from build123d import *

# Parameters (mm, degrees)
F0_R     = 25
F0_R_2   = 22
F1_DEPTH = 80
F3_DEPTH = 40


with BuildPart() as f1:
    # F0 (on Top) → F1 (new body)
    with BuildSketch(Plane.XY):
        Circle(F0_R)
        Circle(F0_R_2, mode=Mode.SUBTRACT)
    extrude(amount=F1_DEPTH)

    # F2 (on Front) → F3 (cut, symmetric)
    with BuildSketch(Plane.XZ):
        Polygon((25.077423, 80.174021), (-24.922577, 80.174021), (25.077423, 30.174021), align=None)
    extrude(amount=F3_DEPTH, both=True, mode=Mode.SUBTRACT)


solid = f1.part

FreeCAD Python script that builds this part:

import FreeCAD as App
import Part
import Sketcher

V = App.Vector


def add_polygon(sketch, points):
    """Adds a closed chain of lines whose ends are joined by coincident constraints."""
    first, n = sketch.GeometryCount, len(points)
    for a, b in zip(points, points[1:] + points[:1]):
        sketch.addGeometry(Part.LineSegment(App.Vector(*a, 0), App.Vector(*b, 0)), False)
    for i in range(n):
        sketch.addConstraint(Sketcher.Constraint("Coincident", first + i, 2, first + (i + 1) % n, 1))

doc = App.newDocument("Part")
body = doc.addObject("PartDesign::Body", "Body")

sketch1 = body.newObject("Sketcher::SketchObject", "Sketch")
sketch1.AttachmentSupport = (doc.getObject("XY_Plane"), [""])
sketch1.MapMode = "FlatFace"
sketch1.addGeometry(Part.Circle(V(0, 0, 0), V(0, 0, 1), 25), False)
sketch1.addGeometry(Part.Circle(V(0, 0, 0), V(0, 0, 1), 22), False)
sketch1.addConstraint(Sketcher.Constraint("Coincident", 0, 3, -1, 1))
sketch1.addConstraint(Sketcher.Constraint("Coincident", 1, 3, -1, 1))
sketch1.addConstraint(Sketcher.Constraint("Diameter", 0, 50.0))
sketch1.addConstraint(Sketcher.Constraint("Diameter", 1, 44.0))
pad1 = body.newObject("PartDesign::Pad", "Pad")
pad1.Profile = sketch1
pad1.Length = 80

sketch2 = body.newObject("Sketcher::SketchObject", "Sketch001")
sketch2.AttachmentSupport = (doc.getObject("XZ_Plane"), [""])
sketch2.MapMode = "FlatFace"
add_polygon(sketch2, [(25.077423, 80.174021), (-24.922577, 80.174021), (25.077423, 30.174021)])
sketch2.addConstraint(Sketcher.Constraint("Horizontal", 0))
sketch2.addConstraint(Sketcher.Constraint("Vertical", 2))
sketch2.addConstraint(Sketcher.Constraint("Equal", 0, 2))
sketch2.addConstraint(Sketcher.Constraint("DistanceX", 0, 2, 0, 1, 50.0))
sketch2.addConstraint(Sketcher.Constraint("DistanceY", -1, 1, 0, 2, 80.174021))
sketch2.addConstraint(Sketcher.Constraint("DistanceX", 0, 2, -1, 1, 24.922577))
pocket1 = body.newObject("PartDesign::Pocket", "Pocket")
pocket1.Profile = sketch2
pocket1.Length = 80
pocket1.Midplane = True

doc.recompute()
